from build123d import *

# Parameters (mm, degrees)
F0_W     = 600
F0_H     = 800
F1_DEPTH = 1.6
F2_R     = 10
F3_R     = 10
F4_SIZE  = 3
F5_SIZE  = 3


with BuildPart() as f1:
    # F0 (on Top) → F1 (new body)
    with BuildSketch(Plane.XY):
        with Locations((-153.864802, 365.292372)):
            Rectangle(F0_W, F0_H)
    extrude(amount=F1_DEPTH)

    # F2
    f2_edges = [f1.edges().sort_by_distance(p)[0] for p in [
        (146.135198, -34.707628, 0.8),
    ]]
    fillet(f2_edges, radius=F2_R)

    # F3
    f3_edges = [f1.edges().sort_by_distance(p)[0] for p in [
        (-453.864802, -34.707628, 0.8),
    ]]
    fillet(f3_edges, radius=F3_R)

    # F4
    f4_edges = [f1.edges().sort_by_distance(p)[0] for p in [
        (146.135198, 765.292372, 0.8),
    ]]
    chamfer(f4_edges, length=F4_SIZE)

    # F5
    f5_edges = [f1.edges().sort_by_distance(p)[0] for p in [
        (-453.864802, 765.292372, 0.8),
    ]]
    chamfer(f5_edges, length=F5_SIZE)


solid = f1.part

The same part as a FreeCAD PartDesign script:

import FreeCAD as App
import Part
import Sketcher
from FreeCAD import Vector


def edges_at(feature, points):
    """Names of the edges that pass closest to the given points."""
    edges = feature.Shape.Edges
    near = lambda p: min(range(len(edges)), key=lambda i: edges[i].distToShape(Part.Vertex(*p))[0])
    return sorted({f"Edge{near(p) + 1}" for p in points})

doc = App.newDocument("Part")
body = doc.addObject("PartDesign::Body", "Body")

sketch1 = body.newObject("Sketcher::SketchObject", "Sketch")
sketch1.AttachmentSupport = (doc.getObject("XY_Plane"), [""])
sketch1.MapMode = "FlatFace"
sketch1.addGeometry(Part.LineSegment(Vector(-454, 765, 0), Vector(-454, -35, 0)), False)
sketch1.addGeometry(Part.LineSegment(Vector(-454, -35, 0), Vector(146, -35, 0)), False)
sketch1.addGeometry(Part.LineSegment(Vector(146, -35, 0), Vector(146, 765, 0)), False)
sketch1.addGeometry(Part.LineSegment(Vector(146, 765, 0), Vector(-454, 765, 0)), False)
sketch1.addConstraint(Sketcher.Constraint("Coincident", 0, 2, 1, 1))
sketch1.addConstraint(Sketcher.Constraint("Coincident", 1, 2, 2, 1))
sketch1.addConstraint(Sketcher.Constraint("Coincident", 2, 2, 3, 1))
sketch1.addConstraint(Sketcher.Constraint("Coincident", 3, 2, 0, 1))
sketch1.addConstraint(Sketcher.Constraint("Vertical", 0))
sketch1.addConstraint(Sketcher.Constraint("Horizontal", 1))
sketch1.addConstraint(Sketcher.Constraint("Vertical", 2))
sketch1.addConstraint(Sketcher.Constraint("Horizontal", 3))
sketch1.addConstraint(Sketcher.Constraint("DistanceX", 1, 1, 1, 2, 600.0))
sketch1.addConstraint(Sketcher.Constraint("DistanceY", 0, 2, 0, 1, 800.0))
sketch1.addConstraint(Sketcher.Constraint("DistanceX", 0, 2, -1, 1, 453.864802))
sketch1.addConstraint(Sketcher.Constraint("DistanceY", -1, 1, 2, 2, 765.292372))
pad1 = body.newObject("PartDesign::Pad", "Pad")
pad1.Profile = sketch1
pad1.Length = 1.6
doc.recompute()

fillet = body.newObject("PartDesign::Fillet", "Fillet")
fillet.Base = (pad1, edges_at(pad1, [(146.135, -34.708, 0.8)]))
fillet.Radius = 10
doc.recompute()

fillet2 = body.newObject("PartDesign::Fillet", "Fillet001")
fillet2.Base = (fillet, edges_at(fillet, [(-453.865, -34.708, 0.8)]))
fillet2.Radius = 10
doc.recompute()

chamfer = body.newObject("PartDesign::Chamfer", "Chamfer")
chamfer.Base = (fillet2, edges_at(fillet2, [(146.135, 765.292, 0.8)]))
chamfer.Size = 3
doc.recompute()

chamfer2 = body.newObject("PartDesign::Chamfer", "Chamfer001")
chamfer2.Base = (chamfer, edges_at(chamfer, [(-453.865, 765.292, 0.8)]))
chamfer2.Size = 3

doc.recompute()
